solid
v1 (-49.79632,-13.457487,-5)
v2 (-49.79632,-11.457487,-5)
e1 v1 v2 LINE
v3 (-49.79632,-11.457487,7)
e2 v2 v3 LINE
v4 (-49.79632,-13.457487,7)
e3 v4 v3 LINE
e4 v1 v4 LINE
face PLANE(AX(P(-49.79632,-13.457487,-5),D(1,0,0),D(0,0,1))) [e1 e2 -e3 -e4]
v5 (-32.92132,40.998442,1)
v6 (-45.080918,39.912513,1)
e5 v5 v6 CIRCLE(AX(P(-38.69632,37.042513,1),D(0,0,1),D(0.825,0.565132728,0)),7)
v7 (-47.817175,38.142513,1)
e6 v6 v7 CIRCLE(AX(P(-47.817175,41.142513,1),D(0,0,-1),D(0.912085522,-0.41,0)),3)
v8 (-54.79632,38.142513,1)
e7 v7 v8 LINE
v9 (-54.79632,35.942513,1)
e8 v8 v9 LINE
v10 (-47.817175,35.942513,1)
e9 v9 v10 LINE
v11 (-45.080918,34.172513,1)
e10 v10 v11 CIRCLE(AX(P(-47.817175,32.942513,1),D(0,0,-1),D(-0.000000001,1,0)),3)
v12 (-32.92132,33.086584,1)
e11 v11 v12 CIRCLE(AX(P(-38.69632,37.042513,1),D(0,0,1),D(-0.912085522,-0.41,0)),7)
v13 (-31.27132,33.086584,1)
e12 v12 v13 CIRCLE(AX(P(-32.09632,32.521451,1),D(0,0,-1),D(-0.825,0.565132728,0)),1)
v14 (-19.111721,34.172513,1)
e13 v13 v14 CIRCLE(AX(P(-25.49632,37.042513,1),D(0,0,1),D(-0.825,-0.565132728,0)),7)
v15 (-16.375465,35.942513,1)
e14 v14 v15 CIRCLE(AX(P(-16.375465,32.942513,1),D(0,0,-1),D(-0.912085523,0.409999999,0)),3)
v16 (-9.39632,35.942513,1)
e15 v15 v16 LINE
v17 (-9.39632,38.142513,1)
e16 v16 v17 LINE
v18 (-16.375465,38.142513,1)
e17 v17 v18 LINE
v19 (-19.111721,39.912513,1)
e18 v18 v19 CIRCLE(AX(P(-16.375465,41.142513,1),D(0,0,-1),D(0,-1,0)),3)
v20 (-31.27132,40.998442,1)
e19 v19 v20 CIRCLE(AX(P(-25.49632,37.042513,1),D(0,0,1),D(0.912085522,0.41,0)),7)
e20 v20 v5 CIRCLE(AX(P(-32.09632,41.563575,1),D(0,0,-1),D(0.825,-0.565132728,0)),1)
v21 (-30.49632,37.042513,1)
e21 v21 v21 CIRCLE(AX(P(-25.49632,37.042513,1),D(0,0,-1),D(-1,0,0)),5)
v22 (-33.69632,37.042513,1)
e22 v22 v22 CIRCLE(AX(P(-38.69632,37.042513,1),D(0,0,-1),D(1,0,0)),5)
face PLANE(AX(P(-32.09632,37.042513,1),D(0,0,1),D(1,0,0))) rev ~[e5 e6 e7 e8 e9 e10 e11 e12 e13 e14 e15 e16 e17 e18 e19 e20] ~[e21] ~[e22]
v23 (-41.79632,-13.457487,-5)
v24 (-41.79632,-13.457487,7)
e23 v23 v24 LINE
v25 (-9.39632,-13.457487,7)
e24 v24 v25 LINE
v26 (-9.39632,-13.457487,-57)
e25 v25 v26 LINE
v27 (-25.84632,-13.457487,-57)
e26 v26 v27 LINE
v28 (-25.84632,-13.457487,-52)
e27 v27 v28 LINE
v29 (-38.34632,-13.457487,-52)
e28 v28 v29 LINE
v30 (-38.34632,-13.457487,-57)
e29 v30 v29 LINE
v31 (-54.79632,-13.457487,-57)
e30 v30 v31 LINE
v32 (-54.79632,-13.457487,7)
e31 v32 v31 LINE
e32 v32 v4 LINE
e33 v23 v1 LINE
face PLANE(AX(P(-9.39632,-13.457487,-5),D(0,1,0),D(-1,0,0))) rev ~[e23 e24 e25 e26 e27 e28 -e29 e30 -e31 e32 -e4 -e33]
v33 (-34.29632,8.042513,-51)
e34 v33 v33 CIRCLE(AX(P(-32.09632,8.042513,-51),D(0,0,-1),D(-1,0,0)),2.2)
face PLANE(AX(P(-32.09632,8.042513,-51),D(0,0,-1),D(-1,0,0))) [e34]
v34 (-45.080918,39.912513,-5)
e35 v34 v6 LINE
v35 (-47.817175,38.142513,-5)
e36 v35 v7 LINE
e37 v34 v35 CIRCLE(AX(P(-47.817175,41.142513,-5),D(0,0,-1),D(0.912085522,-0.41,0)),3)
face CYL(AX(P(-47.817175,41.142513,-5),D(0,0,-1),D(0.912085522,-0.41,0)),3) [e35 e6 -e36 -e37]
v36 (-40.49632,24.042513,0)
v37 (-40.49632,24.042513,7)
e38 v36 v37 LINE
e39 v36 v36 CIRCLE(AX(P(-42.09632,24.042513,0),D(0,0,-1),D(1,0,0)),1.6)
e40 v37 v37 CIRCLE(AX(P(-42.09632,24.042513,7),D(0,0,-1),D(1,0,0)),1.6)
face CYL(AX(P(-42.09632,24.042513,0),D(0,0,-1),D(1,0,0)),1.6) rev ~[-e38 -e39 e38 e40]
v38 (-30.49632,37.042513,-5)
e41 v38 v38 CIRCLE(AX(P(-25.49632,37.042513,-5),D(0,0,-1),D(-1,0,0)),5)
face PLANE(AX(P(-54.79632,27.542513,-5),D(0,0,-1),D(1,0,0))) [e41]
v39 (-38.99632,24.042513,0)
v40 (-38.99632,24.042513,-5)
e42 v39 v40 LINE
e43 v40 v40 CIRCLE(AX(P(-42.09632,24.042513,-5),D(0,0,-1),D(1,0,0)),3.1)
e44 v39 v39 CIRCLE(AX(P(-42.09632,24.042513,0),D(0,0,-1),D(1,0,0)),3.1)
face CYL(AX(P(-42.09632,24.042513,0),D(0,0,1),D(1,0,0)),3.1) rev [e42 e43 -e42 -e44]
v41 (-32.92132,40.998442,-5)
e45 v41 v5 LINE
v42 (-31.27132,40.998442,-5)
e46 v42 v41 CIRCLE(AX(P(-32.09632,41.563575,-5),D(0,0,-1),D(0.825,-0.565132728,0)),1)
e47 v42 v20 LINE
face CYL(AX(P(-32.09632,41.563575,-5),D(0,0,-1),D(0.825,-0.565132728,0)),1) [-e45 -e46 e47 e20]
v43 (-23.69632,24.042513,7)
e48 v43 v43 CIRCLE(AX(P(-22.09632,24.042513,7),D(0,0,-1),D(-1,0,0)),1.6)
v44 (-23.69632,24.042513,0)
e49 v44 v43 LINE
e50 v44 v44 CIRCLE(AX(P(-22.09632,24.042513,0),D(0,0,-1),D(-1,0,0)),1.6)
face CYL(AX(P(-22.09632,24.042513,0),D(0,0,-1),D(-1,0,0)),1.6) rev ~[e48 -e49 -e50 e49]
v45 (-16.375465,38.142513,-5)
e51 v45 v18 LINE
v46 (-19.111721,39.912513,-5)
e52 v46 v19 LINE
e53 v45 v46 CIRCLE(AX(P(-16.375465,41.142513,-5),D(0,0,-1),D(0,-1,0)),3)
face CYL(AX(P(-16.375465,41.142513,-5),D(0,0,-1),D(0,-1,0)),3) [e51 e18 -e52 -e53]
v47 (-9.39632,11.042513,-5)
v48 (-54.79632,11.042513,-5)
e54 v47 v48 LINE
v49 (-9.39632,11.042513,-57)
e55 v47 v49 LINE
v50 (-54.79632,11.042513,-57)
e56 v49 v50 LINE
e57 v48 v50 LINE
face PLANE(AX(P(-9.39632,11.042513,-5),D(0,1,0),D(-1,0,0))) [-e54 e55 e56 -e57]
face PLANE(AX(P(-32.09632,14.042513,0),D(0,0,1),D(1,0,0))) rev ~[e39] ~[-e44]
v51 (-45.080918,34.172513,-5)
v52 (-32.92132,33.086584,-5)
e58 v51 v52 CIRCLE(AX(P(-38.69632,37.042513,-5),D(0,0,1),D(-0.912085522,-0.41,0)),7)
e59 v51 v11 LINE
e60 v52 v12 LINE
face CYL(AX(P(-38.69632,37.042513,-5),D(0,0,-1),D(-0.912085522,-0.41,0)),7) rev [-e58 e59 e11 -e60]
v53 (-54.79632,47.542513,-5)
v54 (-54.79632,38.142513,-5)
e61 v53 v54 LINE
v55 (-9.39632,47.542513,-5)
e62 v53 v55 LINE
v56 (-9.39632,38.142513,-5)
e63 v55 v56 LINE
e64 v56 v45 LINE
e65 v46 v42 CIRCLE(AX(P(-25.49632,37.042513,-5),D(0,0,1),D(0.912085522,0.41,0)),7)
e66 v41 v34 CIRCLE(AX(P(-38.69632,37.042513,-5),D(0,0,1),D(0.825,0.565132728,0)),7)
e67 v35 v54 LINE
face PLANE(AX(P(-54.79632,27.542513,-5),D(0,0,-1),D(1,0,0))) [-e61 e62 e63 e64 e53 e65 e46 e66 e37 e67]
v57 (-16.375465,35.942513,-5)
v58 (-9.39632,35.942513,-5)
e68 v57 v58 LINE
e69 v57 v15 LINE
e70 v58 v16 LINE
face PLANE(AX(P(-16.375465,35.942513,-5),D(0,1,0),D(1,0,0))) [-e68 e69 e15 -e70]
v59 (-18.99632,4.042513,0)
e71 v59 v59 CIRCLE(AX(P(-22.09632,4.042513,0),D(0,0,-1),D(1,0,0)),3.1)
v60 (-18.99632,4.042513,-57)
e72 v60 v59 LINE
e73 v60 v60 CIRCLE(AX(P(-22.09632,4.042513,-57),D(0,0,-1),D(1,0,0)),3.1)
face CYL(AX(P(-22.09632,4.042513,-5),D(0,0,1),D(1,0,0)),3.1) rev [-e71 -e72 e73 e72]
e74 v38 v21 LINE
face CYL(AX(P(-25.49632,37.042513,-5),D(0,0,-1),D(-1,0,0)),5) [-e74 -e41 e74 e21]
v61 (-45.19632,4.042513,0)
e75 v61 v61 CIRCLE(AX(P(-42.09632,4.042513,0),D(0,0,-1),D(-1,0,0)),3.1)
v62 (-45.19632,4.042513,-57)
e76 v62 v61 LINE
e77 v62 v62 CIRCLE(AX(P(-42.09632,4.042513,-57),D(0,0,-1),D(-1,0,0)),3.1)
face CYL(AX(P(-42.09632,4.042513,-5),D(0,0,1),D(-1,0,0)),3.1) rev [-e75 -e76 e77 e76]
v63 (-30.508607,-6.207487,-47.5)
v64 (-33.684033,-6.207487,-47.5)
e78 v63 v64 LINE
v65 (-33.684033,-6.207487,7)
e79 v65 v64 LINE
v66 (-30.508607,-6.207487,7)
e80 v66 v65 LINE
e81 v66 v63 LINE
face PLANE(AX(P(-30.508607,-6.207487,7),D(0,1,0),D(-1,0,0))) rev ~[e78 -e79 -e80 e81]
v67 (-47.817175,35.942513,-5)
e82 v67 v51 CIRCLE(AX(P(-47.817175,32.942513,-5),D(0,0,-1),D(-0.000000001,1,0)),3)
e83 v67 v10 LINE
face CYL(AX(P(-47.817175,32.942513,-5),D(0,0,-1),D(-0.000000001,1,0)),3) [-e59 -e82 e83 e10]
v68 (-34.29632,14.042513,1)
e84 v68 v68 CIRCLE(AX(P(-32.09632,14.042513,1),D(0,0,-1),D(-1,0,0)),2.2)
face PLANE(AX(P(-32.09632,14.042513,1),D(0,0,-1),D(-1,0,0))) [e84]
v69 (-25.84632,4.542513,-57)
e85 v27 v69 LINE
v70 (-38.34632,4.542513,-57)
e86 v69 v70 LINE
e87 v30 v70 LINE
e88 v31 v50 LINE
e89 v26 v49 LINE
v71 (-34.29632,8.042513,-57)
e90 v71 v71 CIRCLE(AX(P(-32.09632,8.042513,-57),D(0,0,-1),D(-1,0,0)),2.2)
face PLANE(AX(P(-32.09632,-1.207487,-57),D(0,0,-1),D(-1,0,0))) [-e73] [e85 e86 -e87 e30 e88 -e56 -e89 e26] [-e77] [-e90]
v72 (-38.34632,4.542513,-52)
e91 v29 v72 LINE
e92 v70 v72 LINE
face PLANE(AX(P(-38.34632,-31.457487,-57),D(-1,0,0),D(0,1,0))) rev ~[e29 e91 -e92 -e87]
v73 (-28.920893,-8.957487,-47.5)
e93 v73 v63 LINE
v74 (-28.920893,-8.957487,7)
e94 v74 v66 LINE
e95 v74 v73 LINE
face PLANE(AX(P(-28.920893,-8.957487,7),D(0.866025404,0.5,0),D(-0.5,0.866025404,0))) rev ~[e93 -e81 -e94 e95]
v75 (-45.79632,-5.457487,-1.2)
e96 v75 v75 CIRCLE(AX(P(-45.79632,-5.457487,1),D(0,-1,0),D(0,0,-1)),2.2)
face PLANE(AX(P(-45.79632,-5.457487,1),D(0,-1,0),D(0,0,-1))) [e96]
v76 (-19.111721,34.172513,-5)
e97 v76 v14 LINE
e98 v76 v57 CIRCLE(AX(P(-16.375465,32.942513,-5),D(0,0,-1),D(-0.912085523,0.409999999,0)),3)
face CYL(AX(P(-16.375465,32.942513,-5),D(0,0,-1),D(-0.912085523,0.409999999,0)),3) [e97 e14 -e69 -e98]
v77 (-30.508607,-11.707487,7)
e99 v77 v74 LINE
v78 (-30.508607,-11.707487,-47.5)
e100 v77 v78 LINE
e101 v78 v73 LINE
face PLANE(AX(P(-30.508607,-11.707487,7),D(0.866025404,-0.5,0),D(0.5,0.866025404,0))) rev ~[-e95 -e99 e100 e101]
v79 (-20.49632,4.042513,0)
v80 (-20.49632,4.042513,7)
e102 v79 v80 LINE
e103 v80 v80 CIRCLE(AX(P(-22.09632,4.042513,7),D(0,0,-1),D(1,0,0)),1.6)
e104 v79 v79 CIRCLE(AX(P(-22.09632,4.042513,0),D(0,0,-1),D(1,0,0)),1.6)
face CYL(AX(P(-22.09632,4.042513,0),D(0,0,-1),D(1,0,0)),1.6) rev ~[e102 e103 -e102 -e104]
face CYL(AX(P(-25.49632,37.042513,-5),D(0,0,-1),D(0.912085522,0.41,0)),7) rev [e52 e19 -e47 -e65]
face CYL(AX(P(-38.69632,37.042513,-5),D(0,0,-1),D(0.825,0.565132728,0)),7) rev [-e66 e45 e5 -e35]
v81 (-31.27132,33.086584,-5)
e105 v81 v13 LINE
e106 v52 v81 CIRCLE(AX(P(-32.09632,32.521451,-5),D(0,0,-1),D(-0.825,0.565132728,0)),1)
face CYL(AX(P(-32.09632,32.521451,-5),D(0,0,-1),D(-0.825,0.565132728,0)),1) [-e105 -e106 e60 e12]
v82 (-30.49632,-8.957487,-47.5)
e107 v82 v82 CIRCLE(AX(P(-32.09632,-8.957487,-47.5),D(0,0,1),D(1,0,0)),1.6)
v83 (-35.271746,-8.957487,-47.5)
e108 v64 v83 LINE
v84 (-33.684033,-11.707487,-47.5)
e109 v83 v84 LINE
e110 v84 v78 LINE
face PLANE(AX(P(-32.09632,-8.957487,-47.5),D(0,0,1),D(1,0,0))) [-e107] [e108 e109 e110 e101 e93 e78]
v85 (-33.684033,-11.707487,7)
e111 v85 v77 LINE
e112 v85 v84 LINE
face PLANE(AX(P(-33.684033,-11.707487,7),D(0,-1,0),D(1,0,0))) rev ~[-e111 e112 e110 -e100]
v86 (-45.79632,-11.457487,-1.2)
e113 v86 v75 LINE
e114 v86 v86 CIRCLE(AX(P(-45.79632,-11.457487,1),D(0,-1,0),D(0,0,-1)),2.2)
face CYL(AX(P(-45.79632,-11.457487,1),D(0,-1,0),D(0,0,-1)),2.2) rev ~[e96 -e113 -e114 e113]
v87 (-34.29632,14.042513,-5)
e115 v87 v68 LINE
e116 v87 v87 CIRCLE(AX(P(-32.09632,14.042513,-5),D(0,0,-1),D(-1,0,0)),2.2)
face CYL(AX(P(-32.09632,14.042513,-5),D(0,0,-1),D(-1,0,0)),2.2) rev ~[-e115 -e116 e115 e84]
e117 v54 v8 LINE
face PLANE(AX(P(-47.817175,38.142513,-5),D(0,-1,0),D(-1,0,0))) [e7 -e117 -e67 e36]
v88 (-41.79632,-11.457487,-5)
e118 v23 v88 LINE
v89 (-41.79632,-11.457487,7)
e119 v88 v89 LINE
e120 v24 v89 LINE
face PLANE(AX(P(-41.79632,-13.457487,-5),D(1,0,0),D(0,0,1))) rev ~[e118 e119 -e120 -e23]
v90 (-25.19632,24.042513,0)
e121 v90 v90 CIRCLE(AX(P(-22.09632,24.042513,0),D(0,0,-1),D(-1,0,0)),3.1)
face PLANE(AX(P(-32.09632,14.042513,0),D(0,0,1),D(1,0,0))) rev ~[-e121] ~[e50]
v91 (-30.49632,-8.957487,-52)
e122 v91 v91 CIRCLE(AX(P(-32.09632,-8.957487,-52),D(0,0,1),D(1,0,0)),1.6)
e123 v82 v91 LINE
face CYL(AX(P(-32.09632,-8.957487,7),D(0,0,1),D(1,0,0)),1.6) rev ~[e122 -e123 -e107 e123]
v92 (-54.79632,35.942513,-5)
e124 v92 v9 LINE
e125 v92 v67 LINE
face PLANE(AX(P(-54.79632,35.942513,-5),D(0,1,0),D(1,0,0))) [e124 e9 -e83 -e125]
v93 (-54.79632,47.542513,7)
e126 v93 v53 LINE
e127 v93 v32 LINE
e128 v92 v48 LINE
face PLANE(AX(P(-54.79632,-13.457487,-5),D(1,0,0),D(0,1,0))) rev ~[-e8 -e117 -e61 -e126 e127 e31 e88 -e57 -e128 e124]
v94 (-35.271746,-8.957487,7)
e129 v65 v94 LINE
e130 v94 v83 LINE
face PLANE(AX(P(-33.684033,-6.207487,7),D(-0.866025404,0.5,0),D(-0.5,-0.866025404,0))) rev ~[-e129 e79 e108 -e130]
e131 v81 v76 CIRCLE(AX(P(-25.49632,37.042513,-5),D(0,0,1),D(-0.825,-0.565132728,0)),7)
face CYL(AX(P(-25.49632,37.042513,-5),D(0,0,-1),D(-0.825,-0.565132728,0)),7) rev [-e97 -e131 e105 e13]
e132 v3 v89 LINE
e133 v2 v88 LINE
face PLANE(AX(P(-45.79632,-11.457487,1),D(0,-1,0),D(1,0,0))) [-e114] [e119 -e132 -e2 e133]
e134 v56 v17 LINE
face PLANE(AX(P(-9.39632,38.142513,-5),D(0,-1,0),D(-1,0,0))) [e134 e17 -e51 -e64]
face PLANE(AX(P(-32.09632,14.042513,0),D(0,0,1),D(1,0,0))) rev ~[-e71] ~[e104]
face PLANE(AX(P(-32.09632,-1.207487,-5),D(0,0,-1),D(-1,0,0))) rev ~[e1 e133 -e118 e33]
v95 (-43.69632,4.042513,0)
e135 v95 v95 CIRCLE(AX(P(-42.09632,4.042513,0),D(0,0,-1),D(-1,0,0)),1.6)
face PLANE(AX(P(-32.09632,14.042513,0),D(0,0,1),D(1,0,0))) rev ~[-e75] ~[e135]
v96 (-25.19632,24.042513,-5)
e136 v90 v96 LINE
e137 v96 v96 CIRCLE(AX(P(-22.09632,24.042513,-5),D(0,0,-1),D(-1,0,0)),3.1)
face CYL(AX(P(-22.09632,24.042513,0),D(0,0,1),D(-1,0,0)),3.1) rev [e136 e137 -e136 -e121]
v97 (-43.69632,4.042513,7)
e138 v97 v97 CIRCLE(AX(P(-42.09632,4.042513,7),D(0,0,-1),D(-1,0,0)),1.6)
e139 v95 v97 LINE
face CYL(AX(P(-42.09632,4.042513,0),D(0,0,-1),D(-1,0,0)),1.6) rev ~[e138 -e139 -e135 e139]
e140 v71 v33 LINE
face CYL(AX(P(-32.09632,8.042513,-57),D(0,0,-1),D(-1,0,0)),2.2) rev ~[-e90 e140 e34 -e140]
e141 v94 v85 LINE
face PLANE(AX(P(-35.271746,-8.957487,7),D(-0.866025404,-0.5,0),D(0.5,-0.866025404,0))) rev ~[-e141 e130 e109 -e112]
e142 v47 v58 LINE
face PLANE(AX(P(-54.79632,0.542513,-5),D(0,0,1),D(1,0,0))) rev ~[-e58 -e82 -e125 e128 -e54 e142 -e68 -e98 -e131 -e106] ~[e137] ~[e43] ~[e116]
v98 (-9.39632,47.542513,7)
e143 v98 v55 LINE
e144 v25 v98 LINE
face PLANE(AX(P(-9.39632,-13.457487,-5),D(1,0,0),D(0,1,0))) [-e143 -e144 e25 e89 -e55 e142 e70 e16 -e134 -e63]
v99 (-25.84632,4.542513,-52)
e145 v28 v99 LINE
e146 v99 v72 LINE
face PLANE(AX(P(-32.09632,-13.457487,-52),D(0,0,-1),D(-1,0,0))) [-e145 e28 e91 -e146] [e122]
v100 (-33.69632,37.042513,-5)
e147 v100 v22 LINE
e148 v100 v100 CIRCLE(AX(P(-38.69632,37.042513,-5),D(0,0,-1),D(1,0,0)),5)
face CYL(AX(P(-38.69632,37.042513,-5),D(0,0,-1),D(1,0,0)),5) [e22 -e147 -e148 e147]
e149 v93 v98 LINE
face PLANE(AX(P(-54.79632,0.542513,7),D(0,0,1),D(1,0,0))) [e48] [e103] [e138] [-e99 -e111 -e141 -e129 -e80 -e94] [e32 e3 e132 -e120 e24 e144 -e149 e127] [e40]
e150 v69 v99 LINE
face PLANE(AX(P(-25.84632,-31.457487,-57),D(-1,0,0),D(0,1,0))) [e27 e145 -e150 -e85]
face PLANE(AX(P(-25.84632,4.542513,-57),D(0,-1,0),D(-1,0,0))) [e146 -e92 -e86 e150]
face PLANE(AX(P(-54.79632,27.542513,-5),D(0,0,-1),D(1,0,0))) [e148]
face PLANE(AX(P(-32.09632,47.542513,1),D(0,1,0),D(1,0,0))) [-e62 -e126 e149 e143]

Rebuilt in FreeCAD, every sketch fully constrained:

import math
import FreeCAD as App
import Part
import Sketcher
from FreeCAD import Vector
Q = App.Units.Quantity

doc = App.newDocument("Part")
body = doc.addObject("PartDesign::Body", "Body")

sketch1 = doc.addObject("Sketcher::SketchObject", "Sketch")
body.addObject(sketch1)
sketch1.AttachmentSupport = (doc.XY_Plane, [""])
sketch1.MapMode = "FlatFace"
sketch1.addGeometry([
    Part.LineSegment(Vector(-55, 28, 0), Vector(-55, 1, 0)),
    Part.LineSegment(Vector(-55, 1, 0), Vector(-9, 1, 0)),
    Part.LineSegment(Vector(-9, 1, 0), Vector(-9, 28, 0)),
    Part.LineSegment(Vector(-9, 28, 0), Vector(-55, 28, 0)),
], False)
sketch1.addConstraint([
    Sketcher.Constraint("Coincident", 0, 2, 1, 1),
    Sketcher.Constraint("Coincident", 1, 2, 2, 1),
    Sketcher.Constraint("Coincident", 2, 2, 3, 1),
    Sketcher.Constraint("Coincident", 3, 2, 0, 1),
    Sketcher.Constraint("Vertical", 0),
    Sketcher.Constraint("Horizontal", 1),
    Sketcher.Constraint("Vertical", 2),
    Sketcher.Constraint("Horizontal", 3),
    Sketcher.Constraint("DistanceY", 0, 2, 0, 1, Q("27 mm")),
    Sketcher.Constraint("DistanceX", 1, 1, 1, 2, Q("45.4 mm")),
    Sketcher.Constraint("DistanceX", 0, 2, -1, 1, Q("54.79632 mm")),
    Sketcher.Constraint("DistanceY", -1, 1, 0, 2, Q("0.542513 mm")),
])
pad1 = doc.addObject("PartDesign::Pad", "Pad")
body.addObject(pad1)
pad1.Profile = sketch1
pad1.Length = 7

sketch2 = doc.addObject("Sketcher::SketchObject", "Sketch001")
body.addObject(sketch2)
sketch2.AttachmentSupport = (doc.XY_Plane, [""])
sketch2.MapMode = "FlatFace"
sketch2.addGeometry([
    Part.Circle(Vector(-22.1, 24, 0), Vector(0, 0, 1), 1.6),
    Part.Circle(Vector(-42.1, 24, 0), Vector(0, 0, 1), 1.6),
    Part.Circle(Vector(-42.1, 4, 0), Vector(0, 0, 1), 1.6),
    Part.Circle(Vector(-22.1, 4, 0), Vector(0, 0, 1), 1.6),
], False)
sketch2.addConstraint([
    Sketcher.Constraint("Equal", 0, 1),
    Sketcher.Constraint("Equal", 1, 2),
    Sketcher.Constraint("Equal", 2, 3),
    Sketcher.Constraint("Horizontal", 0, 3, 1, 3),
    Sketcher.Constraint("Horizontal", 2, 3, 3, 3),
    Sketcher.Constraint("Vertical", 1, 3, 2, 3),
    Sketcher.Constraint("Vertical", 0, 3, 3, 3),
    Sketcher.Constraint("Diameter", 0, Q("3.2 mm")),
    Sketcher.Constraint("DistanceX", 1, 3, 0, 3, Q("20 mm")),
    Sketcher.Constraint("DistanceY", 2, 3, 1, 3, Q("20 mm")),
    Sketcher.Constraint("DistanceX", 0, 3, -1, 1, Q("22.09632 mm")),
    Sketcher.Constraint("DistanceY", -1, 1, 0, 3, Q("24.042513 mm")),
])
pocket1 = doc.addObject("PartDesign::Pocket", "Pocket")
body.addObject(pocket1)
pocket1.Profile = sketch2
pocket1.Type = "ThroughAll"
pocket1.Reversed = True

sketch3 = doc.addObject("Sketcher::SketchObject", "Sketch002")
body.addObject(sketch3)
sketch3.AttachmentSupport = (doc.XY_Plane, [""])
sketch3.MapMode = "FlatFace"
sketch3.addGeometry([
    Part.LineSegment(Vector(-54.8, 0.5, 0), Vector(-54.8, 27.5, 0)),
    Part.LineSegment(Vector(-54.8, 27.5, 0), Vector(-9.4, 27.5, 0)),
    Part.LineSegment(Vector(-9.4, 27.5, 0), Vector(-9.4, 0.5, 0)),
    Part.LineSegment(Vector(-9.4, 0.5, 0), Vector(-54.8, 0.5, 0)),
    Part.Circle(Vector(-22.1, 4, 0), Vector(0, 0, 1), 3.1),
    Part.Circle(Vector(-42.1, 4, 0), Vector(0, 0, 1), 3.1),
    Part.Circle(Vector(-22.1, 24, 0), Vector(0, 0, 1), 3.1),
    Part.Circle(Vector(-42.1, 24, 0), Vector(0, 0, 1), 3.1),
], False)
sketch3.addConstraint([
    Sketcher.Constraint("Coincident", 0, 2, 1, 1),
    Sketcher.Constraint("Coincident", 1, 2, 2, 1),
    Sketcher.Constraint("Coincident", 2, 2, 3, 1),
    Sketcher.Constraint("Coincident", 3, 2, 0, 1),
    Sketcher.Constraint("Vertical", 0),
    Sketcher.Constraint("Horizontal", 1),
    Sketcher.Constraint("Vertical", 2),
    Sketcher.Constraint("Horizontal", 3),
    Sketcher.Constraint("Equal", 4, 5),
    Sketcher.Constraint("Equal", 5, 6),
    Sketcher.Constraint("Equal", 6, 7),
    Sketcher.Constraint("Horizontal", 4, 3, 5, 3),
    Sketcher.Constraint("Horizontal", 6, 3, 7, 3),
    Sketcher.Constraint("Vertical", 4, 3, 6, 3),
    Sketcher.Constraint("Vertical", 5, 3, 7, 3),
    Sketcher.Constraint("Diameter", 4, Q("6.2 mm")),
    Sketcher.Constraint("DistanceY", 0, 1, 0, 2, Q("27 mm")),
    Sketcher.Constraint("DistanceX", 1, 1, 1, 2, Q("45.4 mm")),
    Sketcher.Constraint("DistanceX", 5, 3, 4, 3, Q("20 mm")),
    Sketcher.Constraint("DistanceY", 4, 3, 6, 3, Q("20 mm")),
    Sketcher.Constraint("DistanceX", 0, 2, 7, 3, Q("12.7 mm")),
    Sketcher.Constraint("DistanceY", 7, 3, 0, 2, Q("3.5 mm")),
    Sketcher.Constraint("DistanceX", 4, 3, -1, 1, Q("22.09632 mm")),
    Sketcher.Constraint("DistanceY", -1, 1, 4, 3, Q("4.042513 mm")),
])
pad2 = doc.addObject("PartDesign::Pad", "Pad001")
body.addObject(pad2)
pad2.Profile = sketch3
pad2.Length = 5
pad2.Reversed = True

sketch4 = doc.addObject("Sketcher::SketchObject", "Sketch003")
body.addObject(sketch4)
sketch4.AttachmentSupport = (doc.XZ_Plane, [""])
sketch4.MapMode = "FlatFace"
sketch4.AttachmentOffset = App.Placement(Vector(0, 0, -27.542513), App.Rotation())
sketch4.addGeometry([
    Part.LineSegment(Vector(-55, -5, 0), Vector(-55, 7, 0)),
    Part.LineSegment(Vector(-55, 7, 0), Vector(-9, 7, 0)),
    Part.LineSegment(Vector(-9, 7, 0), Vector(-9, -5, 0)),
    Part.LineSegment(Vector(-9, -5, 0), Vector(-55, -5, 0)),
], False)
sketch4.addConstraint([
    Sketcher.Constraint("Coincident", 0, 2, 1, 1),
    Sketcher.Constraint("Coincident", 1, 2, 2, 1),
    Sketcher.Constraint("Coincident", 2, 2, 3, 1),
    Sketcher.Constraint("Coincident", 3, 2, 0, 1),
    Sketcher.Constraint("Vertical", 0),
    Sketcher.Constraint("Horizontal", 1),
    Sketcher.Constraint("Vertical", 2),
    Sketcher.Constraint("Horizontal", 3),
    Sketcher.Constraint("DistanceY", 0, 1, 0, 2, Q("12 mm")),
    Sketcher.Constraint("DistanceX", 1, 1, 1, 2, Q("45.4 mm")),
    Sketcher.Constraint("DistanceY", -1, 1, 0, 2, Q("7 mm")),
    Sketcher.Constraint("DistanceX", 0, 2, -1, 1, Q("54.79632 mm")),
])
pad3 = doc.addObject("PartDesign::Pad", "Pad002")
body.addObject(pad3)
pad3.Profile = sketch4
pad3.Length = 20
pad3.Reversed = True

sketch5 = doc.addObject("Sketcher::SketchObject", "Sketch004")
body.addObject(sketch5)
sketch5.AttachmentSupport = (doc.XY_Plane, [""])
sketch5.MapMode = "FlatFace"
sketch5.AttachmentOffset = App.Placement(Vector(0, 0, -5), App.Rotation())
sketch5.addGeometry([
    Part.LineSegment(Vector(-16.4, 38.1, 0), Vector(-9.4, 38.1, 0)),
    Part.LineSegment(Vector(-9.4, 38.1, 0), Vector(-9.4, 35.9, 0)),
    Part.LineSegment(Vector(-9.4, 35.9, 0), Vector(-16.4, 35.9, 0)),
    Part.ArcOfCircle(Part.Circle(Vector(-16.4, 32.9, 0), Vector(0, 0, 1), 3), math.radians(90), math.radians(156)),
    Part.ArcOfCircle(Part.Circle(Vector(-25.5, 37, 0), Vector(0, 0, 1), 7), math.radians(-146), math.radians(-24)),
    Part.ArcOfCircle(Part.Circle(Vector(-32.1, 32.5, 0), Vector(0, 0, 1), 1), math.radians(34), math.radians(146)),
    Part.ArcOfCircle(Part.Circle(Vector(-38.7, 37, 0), Vector(0, 0, 1), 7), math.radians(-156), math.radians(-34)),
    Part.ArcOfCircle(Part.Circle(Vector(-47.8, 32.9, 0), Vector(0, 0, 1), 3), math.radians(24), math.radians(90)),
    Part.LineSegment(Vector(-47.8, 35.9, 0), Vector(-54.8, 35.9, 0)),
    Part.LineSegment(Vector(-54.8, 35.9, 0), Vector(-54.8, 38.1, 0)),
    Part.LineSegment(Vector(-54.8, 38.1, 0), Vector(-47.8, 38.1, 0)),
    Part.ArcOfCircle(Part.Circle(Vector(-47.8, 41.1, 0), Vector(0, 0, 1), 3), math.radians(-90), math.radians(-24)),
    Part.ArcOfCircle(Part.Circle(Vector(-38.7, 37, 0), Vector(0, 0, 1), 7), math.radians(34), math.radians(156)),
    Part.ArcOfCircle(Part.Circle(Vector(-32.1, 41.6, 0), Vector(0, 0, 1), 1), math.radians(-146), math.radians(-34)),
    Part.ArcOfCircle(Part.Circle(Vector(-25.5, 37, 0), Vector(0, 0, 1), 7), math.radians(24), math.radians(146)),
    Part.ArcOfCircle(Part.Circle(Vector(-16.4, 41.1, 0), Vector(0, 0, 1), 3), math.radians(-156), math.radians(-90)),
    Part.Circle(Vector(-38.7, 37, 0), Vector(0, 0, 1), 5),
    Part.Circle(Vector(-25.5, 37, 0), Vector(0, 0, 1), 5),
], False)
sketch5.addConstraint([
    Sketcher.Constraint("Coincident", 0, 2, 1, 1),
    Sketcher.Constraint("Coincident", 1, 2, 2, 1),
    Sketcher.Constraint("Tangent", 2, 2, 3, 1),
    Sketcher.Constraint("Tangent", 3, 2, 4, 2),
    Sketcher.Constraint("Tangent", 4, 1, 5, 1),
    Sketcher.Constraint("Tangent", 5, 2, 6, 2),
    Sketcher.Constraint("Tangent", 6, 1, 7, 1),
    Sketcher.Constraint("Tangent", 7, 2, 8, 1),
    Sketcher.Constraint("Coincident", 8, 2, 9, 1),
    Sketcher.Constraint("Coincident", 9, 2, 10, 1),
    Sketcher.Constraint("Tangent", 10, 2, 11, 1),
    Sketcher.Constraint("Tangent", 11, 2, 12, 2),
    Sketcher.Constraint("Tangent", 12, 1, 13, 1),
    Sketcher.Constraint("Tangent", 13, 2, 14, 2),
    Sketcher.Constraint("Tangent", 14, 1, 15, 1),
    Sketcher.Constraint("Tangent", 15, 2, 0, 1),
    Sketcher.Constraint("Horizontal", 0),
    Sketcher.Constraint("Vertical", 1),
    Sketcher.Constraint("Horizontal", 2),
    Sketcher.Constraint("Horizontal", 8),
    Sketcher.Constraint("Vertical", 9),
    Sketcher.Constraint("Horizontal", 10),
    Sketcher.Constraint("Coincident", 12, 3, 6, 3),
    Sketcher.Constraint("Coincident", 14, 3, 4, 3),
    Sketcher.Constraint("Coincident", 16, 3, 6, 3),
    Sketcher.Constraint("Coincident", 17, 3, 4, 3),
    Sketcher.Constraint("Equal", 4, 6),
    Sketcher.Constraint("Equal", 3, 7),
    Sketcher.Constraint("Equal", 7, 11),
    Sketcher.Constraint("Equal", 6, 12),
    Sketcher.Constraint("Equal", 5, 13),
    Sketcher.Constraint("Equal", 12, 14),
    Sketcher.Constraint("Equal", 11, 15),
    Sketcher.Constraint("Equal", 16, 17),
    Sketcher.Constraint("Horizontal", 4, 3, 6, 3),
    Sketcher.Constraint("Horizontal", 3, 3, 7, 3),
    Sketcher.Constraint("Horizontal", 11, 3, 15, 3),
    Sketcher.Constraint("Vertical", 7, 3, 11, 3),
    Sketcher.Constraint("Equal", 2, 8),
    Sketcher.Constraint("Diameter", 16, Q("10 mm")),
    Sketcher.Constraint("Radius", 3, Q("3 mm")),
    Sketcher.Constraint("Radius", 4, Q("7 mm")),
    Sketcher.Constraint("Radius", 5, Q("1 mm")),
    Sketcher.Constraint("DistanceY", 1, 2, 1, 1, Q("2.2 mm")),
    Sketcher.Constraint("DistanceX", 5, 3, 4, 3, Q("6.6 mm")),
    Sketcher.Constraint("DistanceX", 14, 3, 0, 2, Q("16.1 mm")),
    Sketcher.Constraint("DistanceX", 4, 3, -1, 1, Q("25.49632 mm")),
    Sketcher.Constraint("DistanceY", -1, 1, 5, 3, Q("32.521451 mm")),
])
pocket2 = doc.addObject("PartDesign::Pocket", "Pocket001")
body.addObject(pocket2)
pocket2.Profile = sketch5
pocket2.Length = 6
pocket2.Reversed = True

sketch6 = doc.addObject("Sketcher::SketchObject", "Sketch005")
body.addObject(sketch6)
sketch6.AttachmentSupport = (doc.XZ_Plane, [""])
sketch6.MapMode = "FlatFace"
sketch6.AttachmentOffset = App.Placement(Vector(0, 0, -0.542513), App.Rotation())
sketch6.addGeometry([
    Part.LineSegment(Vector(-9, 7, 0), Vector(-55, 7, 0)),
    Part.LineSegment(Vector(-55, 7, 0), Vector(-55, -5, 0)),
    Part.LineSegment(Vector(-55, -5, 0), Vector(-9, -5, 0)),
    Part.LineSegment(Vector(-9, -5, 0), Vector(-9, 7, 0)),
], False)
sketch6.addConstraint([
    Sketcher.Constraint("Coincident", 0, 2, 1, 1),
    Sketcher.Constraint("Coincident", 1, 2, 2, 1),
    Sketcher.Constraint("Coincident", 2, 2, 3, 1),
    Sketcher.Constraint("Coincident", 3, 2, 0, 1),
    Sketcher.Constraint("Horizontal", 0),
    Sketcher.Constraint("Vertical", 1),
    Sketcher.Constraint("Horizontal", 2),
    Sketcher.Constraint("Vertical", 3),
    Sketcher.Constraint("DistanceY", 1, 2, 1, 1, Q("12 mm")),
    Sketcher.Constraint("DistanceX", 0, 2, 0, 1, Q("45.4 mm")),
    Sketcher.Constraint("DistanceY", -1, 1, 0, 2, Q("7 mm")),
    Sketcher.Constraint("DistanceX", 0, 2, -1, 1, Q("54.79632 mm")),
])
pad4 = doc.addObject("PartDesign::Pad", "Pad003")
body.addObject(pad4)
pad4.Profile = sketch6
pad4.Length = 14

sketch7 = doc.addObject("Sketcher::SketchObject", "Sketch006")
body.addObject(sketch7)
sketch7.AttachmentSupport = (doc.XZ_Plane, [""])
sketch7.MapMode = "FlatFace"
sketch7.AttachmentOffset = App.Placement(Vector(0, 0, 13.457487), App.Rotation())
sketch7.addGeometry([
    Part.LineSegment(Vector(-50, 7, 0), Vector(-50, -5, 0)),
    Part.LineSegment(Vector(-50, -5, 0), Vector(-42, -5, 0)),
    Part.LineSegment(Vector(-42, -5, 0), Vector(-42, 7, 0)),
    Part.LineSegment(Vector(-42, 7, 0), Vector(-50, 7, 0)),
], False)
sketch7.addConstraint([
    Sketcher.Constraint("Coincident", 0, 2, 1, 1),
    Sketcher.Constraint("Coincident", 1, 2, 2, 1),
    Sketcher.Constraint("Coincident", 2, 2, 3, 1),
    Sketcher.Constraint("Coincident", 3, 2, 0, 1),
    Sketcher.Constraint("Vertical", 0),
    Sketcher.Constraint("Horizontal", 1),
    Sketcher.Constraint("Vertical", 2),
    Sketcher.Constraint("Horizontal", 3),
    Sketcher.Constraint("DistanceX", 1, 1, 1, 2, Q("8 mm")),
    Sketcher.Constraint("DistanceY", 0, 2, 0, 1, Q("12 mm")),
    Sketcher.Constraint("DistanceY", 0, 2, -1, 1, Q("5 mm")),
    Sketcher.Constraint("DistanceX", 0, 2, -1, 1, Q("49.79632 mm")),
])
pocket3 = doc.addObject("PartDesign::Pocket", "Pocket002")
body.addObject(pocket3)
pocket3.Profile = sketch7
pocket3.Length = 2

sketch8 = doc.addObject("Sketcher::SketchObject", "Sketch007")
body.addObject(sketch8)
sketch8.AttachmentSupport = (doc.XZ_Plane, [""])
sketch8.MapMode = "FlatFace"
sketch8.AttachmentOffset = App.Placement(Vector(0, 0, 11.457487), App.Rotation())
sketch8.addGeometry(Part.Circle(Vector(-45.8, 1, 0), Vector(0, 0, 1), 2.2), False)
sketch8.addConstraint([
    Sketcher.Constraint("Diameter", 0, Q("4.4 mm")),
    Sketcher.Constraint("DistanceY", -1, 1, 0, 3, Q("1 mm")),
    Sketcher.Constraint("DistanceX", 0, 3, -1, 1, Q("45.79632 mm")),
])
pocket4 = doc.addObject("PartDesign::Pocket", "Pocket003")
body.addObject(pocket4)
pocket4.Profile = sketch8
pocket4.Length = 6

sketch9 = doc.addObject("Sketcher::SketchObject", "Sketch008")
body.addObject(sketch9)
sketch9.AttachmentSupport = (doc.XY_Plane, [""])
sketch9.MapMode = "FlatFace"
sketch9.AttachmentOffset = App.Placement(Vector(0, 0, -5), App.Rotation())
sketch9.addGeometry(Part.Circle(Vector(-32.1, 14, 0), Vector(0, 0, 1), 2.2), False)
sketch9.addConstraint([
    Sketcher.Constraint("Diameter", 0, Q("4.4 mm")),
    Sketcher.Constraint("DistanceX", 0, 3, -1, 1, Q("32.09632 mm")),
    Sketcher.Constraint("DistanceY", -1, 1, 0, 3, Q("14.042513 mm")),
])
pocket5 = doc.addObject("PartDesign::Pocket", "Pocket004")
body.addObject(pocket5)
pocket5.Profile = sketch9
pocket5.Length = 6
pocket5.Reversed = True

sketch10 = doc.addObject("Sketcher::SketchObject", "Sketch009")
body.addObject(sketch10)
sketch10.AttachmentSupport = (doc.XY_Plane, [""])
sketch10.MapMode = "FlatFace"
sketch10.AttachmentOffset = App.Placement(Vector(0, 0, -5), App.Rotation())
sketch10.addGeometry([
    Part.LineSegment(Vector(-9.4, 11, 0), Vector(-9.4, -13.5, 0)),
    Part.LineSegment(Vector(-9.4, -13.5, 0), Vector(-54.8, -13.5, 0)),
    Part.LineSegment(Vector(-54.8, -13.5, 0), Vector(-54.8, 11, 0)),
    Part.LineSegment(Vector(-54.8, 11, 0), Vector(-9.4, 11, 0)),
    Part.Circle(Vector(-22.1, 4, 0), Vector(0, 0, 1), 3.1),
    Part.Circle(Vector(-42.1, 4, 0), Vector(0, 0, 1), 3.1),
], False)
sketch10.addConstraint([
    Sketcher.Constraint("Coincident", 0, 2, 1, 1),
    Sketcher.Constraint("Coincident", 1, 2, 2, 1),
    Sketcher.Constraint("Coincident", 2, 2, 3, 1),
    Sketcher.Constraint("Coincident", 3, 2, 0, 1),
    Sketcher.Constraint("Vertical", 0),
    Sketcher.Constraint("Horizontal", 1),
    Sketcher.Constraint("Vertical", 2),
    Sketcher.Constraint("Horizontal", 3),
    Sketcher.Constraint("Equal", 4, 5),
    Sketcher.Constraint("Horizontal", 4, 3, 5, 3),
    Sketcher.Constraint("Diameter", 4, Q("6.2 mm")),
    Sketcher.Constraint("DistanceX", 1, 2, 1, 1, Q("45.4 mm")),
    Sketcher.Constraint("DistanceY", 0, 2, 0, 1, Q("24.5 mm")),
    Sketcher.Constraint("DistanceX", 5, 3, 4, 3, Q("20 mm")),
    Sketcher.Constraint("DistanceY", 5, 3, 2, 2, Q("7 mm")),
    Sketcher.Constraint("DistanceX", 4, 3, 0, 2, Q("12.7 mm")),
    Sketcher.Constraint("DistanceX", 4, 3, -1, 1, Q("22.09632 mm")),
    Sketcher.Constraint("DistanceY", -1, 1, 4, 3, Q("4.042513 mm")),
])
pad5 = doc.addObject("PartDesign::Pad", "Pad004")
body.addObject(pad5)
pad5.Profile = sketch10
pad5.Length = 52
pad5.Reversed = True

sketch11 = doc.addObject("Sketcher::SketchObject", "Sketch010")
body.addObject(sketch11)
sketch11.AttachmentSupport = (doc.XY_Plane, [""])
sketch11.MapMode = "FlatFace"
sketch11.AttachmentOffset = App.Placement(Vector(0, 0, -57), App.Rotation())
sketch11.addGeometry([
    Part.LineSegment(Vector(-26, 5, 0), Vector(-26, -31, 0)),
    Part.LineSegment(Vector(-26, -31, 0), Vector(-38, -31, 0)),
    Part.LineSegment(Vector(-38, -31, 0), Vector(-38, 5, 0)),
    Part.LineSegment(Vector(-38, 5, 0), Vector(-26, 5, 0)),
], False)
sketch11.addConstraint([
    Sketcher.Constraint("Coincident", 0, 2, 1, 1),
    Sketcher.Constraint("Coincident", 1, 2, 2, 1),
    Sketcher.Constraint("Coincident", 2, 2, 3, 1),
    Sketcher.Constraint("Coincident", 3, 2, 0, 1),
    Sketcher.Constraint("Vertical", 0),
    Sketcher.Constraint("Horizontal", 1),
    Sketcher.Constraint("Vertical", 2),
    Sketcher.Constraint("Horizontal", 3),
    Sketcher.Constraint("DistanceY", 0, 2, 0, 1, Q("36 mm")),
    Sketcher.Constraint("DistanceX", 1, 2, 1, 1, Q("12.5 mm")),
    Sketcher.Constraint("DistanceX", 0, 2, -1, 1, Q("25.84632 mm")),
    Sketcher.Constraint("DistanceY", 0, 2, -1, 1, Q("31.457487 mm")),
])
pocket6 = doc.addObject("PartDesign::Pocket", "Pocket005")
body.addObject(pocket6)
pocket6.Profile = sketch11
pocket6.Length = 5
pocket6.Reversed = True

sketch12 = doc.addObject("Sketcher::SketchObject", "Sketch011")
body.addObject(sketch12)
sketch12.AttachmentSupport = (doc.XY_Plane, [""])
sketch12.MapMode = "FlatFace"
sketch12.AttachmentOffset = App.Placement(Vector(0, 0, 7), App.Rotation())
sketch12.addGeometry(Part.Circle(Vector(-32.1, -9, 0), Vector(0, 0, 1), 1.6), False)
sketch12.addConstraint([
    Sketcher.Constraint("Diameter", 0, Q("3.2 mm")),
    Sketcher.Constraint("DistanceX", 0, 3, -1, 1, Q("32.09632 mm")),
    Sketcher.Constraint("DistanceY", 0, 3, -1, 1, Q("8.957487 mm")),
])
pocket7 = doc.addObject("PartDesign::Pocket", "Pocket006")
body.addObject(pocket7)
pocket7.Profile = sketch12
pocket7.Type = "ThroughAll"

sketch13 = doc.addObject("Sketcher::SketchObject", "Sketch012")
body.addObject(sketch13)
sketch13.AttachmentSupport = (doc.XY_Plane, [""])
sketch13.MapMode = "FlatFace"
sketch13.AttachmentOffset = App.Placement(Vector(0, 0, 7), App.Rotation())
sketch13.addGeometry([
    Part.LineSegment(Vector(-28.9, -9, 0), Vector(-30.5, -6.2, 0)),
    Part.LineSegment(Vector(-30.5, -6.2, 0), Vector(-33.7, -6.2, 0)),
    Part.LineSegment(Vector(-33.7, -6.2, 0), Vector(-35.3, -9, 0)),
    Part.LineSegment(Vector(-35.3, -9, 0), Vector(-33.7, -11.7, 0)),
    Part.LineSegment(Vector(-33.7, -11.7, 0), Vector(-30.5, -11.7, 0)),
    Part.LineSegment(Vector(-30.5, -11.7, 0), Vector(-28.9, -9, 0)),
], False)
sketch13.addConstraint([
    Sketcher.Constraint("Coincident", 0, 2, 1, 1),
    Sketcher.Constraint("Coincident", 1, 2, 2, 1),
    Sketcher.Constraint("Coincident", 2, 2, 3, 1),
    Sketcher.Constraint("Coincident", 3, 2, 4, 1),
    Sketcher.Constraint("Coincident", 4, 2, 5, 1),
    Sketcher.Constraint("Coincident", 5, 2, 0, 1),
    Sketcher.Constraint("Horizontal", 1),
    Sketcher.Constraint("Horizontal", 4),
    Sketcher.Constraint("Parallel", 0, 3),
    Sketcher.Constraint("Parallel", 2, 5),
    Sketcher.Constraint("Horizontal", 2, 2, 5, 2),
    Sketcher.Constraint("Vertical", 1, 2, 3, 2),
    Sketcher.Constraint("Vertical", 0, 2, 4, 2),
    Sketcher.Constraint("Angle", 0, Q("120 deg")),
    Sketcher.Constraint("DistanceY", 3, 2, 1, 2, Q("5.5 mm")),
    Sketcher.Constraint("DistanceX", 1, 2, 1, 1, Q("3.175426 mm")),
    Sketcher.Constraint("DistanceX", 0, 2, -1, 1, Q("30.508607 mm")),
    Sketcher.Constraint("DistanceY", 0, 2, -1, 1, Q("6.207487 mm")),
])
pocket8 = doc.addObject("PartDesign::Pocket", "Pocket007")
body.addObject(pocket8)
pocket8.Profile = sketch13
pocket8.Length = 54.5

sketch14 = doc.addObject("Sketcher::SketchObject", "Sketch013")
body.addObject(sketch14)
sketch14.AttachmentSupport = (doc.XY_Plane, [""])
sketch14.MapMode = "FlatFace"
sketch14.AttachmentOffset = App.Placement(Vector(0, 0, -57), App.Rotation())
sketch14.addGeometry(Part.Circle(Vector(-32.1, 8, 0), Vector(0, 0, 1), 2.2), False)
sketch14.addConstraint([
    Sketcher.Constraint("Diameter", 0, Q("4.4 mm")),
    Sketcher.Constraint("DistanceX", 0, 3, -1, 1, Q("32.09632 mm")),
    Sketcher.Constraint("DistanceY", -1, 1, 0, 3, Q("8.042513 mm")),
])
pocket9 = doc.addObject("PartDesign::Pocket", "Pocket008")
body.addObject(pocket9)
pocket9.Profile = sketch14
pocket9.Length = 6
pocket9.Reversed = True

doc.recompute()
